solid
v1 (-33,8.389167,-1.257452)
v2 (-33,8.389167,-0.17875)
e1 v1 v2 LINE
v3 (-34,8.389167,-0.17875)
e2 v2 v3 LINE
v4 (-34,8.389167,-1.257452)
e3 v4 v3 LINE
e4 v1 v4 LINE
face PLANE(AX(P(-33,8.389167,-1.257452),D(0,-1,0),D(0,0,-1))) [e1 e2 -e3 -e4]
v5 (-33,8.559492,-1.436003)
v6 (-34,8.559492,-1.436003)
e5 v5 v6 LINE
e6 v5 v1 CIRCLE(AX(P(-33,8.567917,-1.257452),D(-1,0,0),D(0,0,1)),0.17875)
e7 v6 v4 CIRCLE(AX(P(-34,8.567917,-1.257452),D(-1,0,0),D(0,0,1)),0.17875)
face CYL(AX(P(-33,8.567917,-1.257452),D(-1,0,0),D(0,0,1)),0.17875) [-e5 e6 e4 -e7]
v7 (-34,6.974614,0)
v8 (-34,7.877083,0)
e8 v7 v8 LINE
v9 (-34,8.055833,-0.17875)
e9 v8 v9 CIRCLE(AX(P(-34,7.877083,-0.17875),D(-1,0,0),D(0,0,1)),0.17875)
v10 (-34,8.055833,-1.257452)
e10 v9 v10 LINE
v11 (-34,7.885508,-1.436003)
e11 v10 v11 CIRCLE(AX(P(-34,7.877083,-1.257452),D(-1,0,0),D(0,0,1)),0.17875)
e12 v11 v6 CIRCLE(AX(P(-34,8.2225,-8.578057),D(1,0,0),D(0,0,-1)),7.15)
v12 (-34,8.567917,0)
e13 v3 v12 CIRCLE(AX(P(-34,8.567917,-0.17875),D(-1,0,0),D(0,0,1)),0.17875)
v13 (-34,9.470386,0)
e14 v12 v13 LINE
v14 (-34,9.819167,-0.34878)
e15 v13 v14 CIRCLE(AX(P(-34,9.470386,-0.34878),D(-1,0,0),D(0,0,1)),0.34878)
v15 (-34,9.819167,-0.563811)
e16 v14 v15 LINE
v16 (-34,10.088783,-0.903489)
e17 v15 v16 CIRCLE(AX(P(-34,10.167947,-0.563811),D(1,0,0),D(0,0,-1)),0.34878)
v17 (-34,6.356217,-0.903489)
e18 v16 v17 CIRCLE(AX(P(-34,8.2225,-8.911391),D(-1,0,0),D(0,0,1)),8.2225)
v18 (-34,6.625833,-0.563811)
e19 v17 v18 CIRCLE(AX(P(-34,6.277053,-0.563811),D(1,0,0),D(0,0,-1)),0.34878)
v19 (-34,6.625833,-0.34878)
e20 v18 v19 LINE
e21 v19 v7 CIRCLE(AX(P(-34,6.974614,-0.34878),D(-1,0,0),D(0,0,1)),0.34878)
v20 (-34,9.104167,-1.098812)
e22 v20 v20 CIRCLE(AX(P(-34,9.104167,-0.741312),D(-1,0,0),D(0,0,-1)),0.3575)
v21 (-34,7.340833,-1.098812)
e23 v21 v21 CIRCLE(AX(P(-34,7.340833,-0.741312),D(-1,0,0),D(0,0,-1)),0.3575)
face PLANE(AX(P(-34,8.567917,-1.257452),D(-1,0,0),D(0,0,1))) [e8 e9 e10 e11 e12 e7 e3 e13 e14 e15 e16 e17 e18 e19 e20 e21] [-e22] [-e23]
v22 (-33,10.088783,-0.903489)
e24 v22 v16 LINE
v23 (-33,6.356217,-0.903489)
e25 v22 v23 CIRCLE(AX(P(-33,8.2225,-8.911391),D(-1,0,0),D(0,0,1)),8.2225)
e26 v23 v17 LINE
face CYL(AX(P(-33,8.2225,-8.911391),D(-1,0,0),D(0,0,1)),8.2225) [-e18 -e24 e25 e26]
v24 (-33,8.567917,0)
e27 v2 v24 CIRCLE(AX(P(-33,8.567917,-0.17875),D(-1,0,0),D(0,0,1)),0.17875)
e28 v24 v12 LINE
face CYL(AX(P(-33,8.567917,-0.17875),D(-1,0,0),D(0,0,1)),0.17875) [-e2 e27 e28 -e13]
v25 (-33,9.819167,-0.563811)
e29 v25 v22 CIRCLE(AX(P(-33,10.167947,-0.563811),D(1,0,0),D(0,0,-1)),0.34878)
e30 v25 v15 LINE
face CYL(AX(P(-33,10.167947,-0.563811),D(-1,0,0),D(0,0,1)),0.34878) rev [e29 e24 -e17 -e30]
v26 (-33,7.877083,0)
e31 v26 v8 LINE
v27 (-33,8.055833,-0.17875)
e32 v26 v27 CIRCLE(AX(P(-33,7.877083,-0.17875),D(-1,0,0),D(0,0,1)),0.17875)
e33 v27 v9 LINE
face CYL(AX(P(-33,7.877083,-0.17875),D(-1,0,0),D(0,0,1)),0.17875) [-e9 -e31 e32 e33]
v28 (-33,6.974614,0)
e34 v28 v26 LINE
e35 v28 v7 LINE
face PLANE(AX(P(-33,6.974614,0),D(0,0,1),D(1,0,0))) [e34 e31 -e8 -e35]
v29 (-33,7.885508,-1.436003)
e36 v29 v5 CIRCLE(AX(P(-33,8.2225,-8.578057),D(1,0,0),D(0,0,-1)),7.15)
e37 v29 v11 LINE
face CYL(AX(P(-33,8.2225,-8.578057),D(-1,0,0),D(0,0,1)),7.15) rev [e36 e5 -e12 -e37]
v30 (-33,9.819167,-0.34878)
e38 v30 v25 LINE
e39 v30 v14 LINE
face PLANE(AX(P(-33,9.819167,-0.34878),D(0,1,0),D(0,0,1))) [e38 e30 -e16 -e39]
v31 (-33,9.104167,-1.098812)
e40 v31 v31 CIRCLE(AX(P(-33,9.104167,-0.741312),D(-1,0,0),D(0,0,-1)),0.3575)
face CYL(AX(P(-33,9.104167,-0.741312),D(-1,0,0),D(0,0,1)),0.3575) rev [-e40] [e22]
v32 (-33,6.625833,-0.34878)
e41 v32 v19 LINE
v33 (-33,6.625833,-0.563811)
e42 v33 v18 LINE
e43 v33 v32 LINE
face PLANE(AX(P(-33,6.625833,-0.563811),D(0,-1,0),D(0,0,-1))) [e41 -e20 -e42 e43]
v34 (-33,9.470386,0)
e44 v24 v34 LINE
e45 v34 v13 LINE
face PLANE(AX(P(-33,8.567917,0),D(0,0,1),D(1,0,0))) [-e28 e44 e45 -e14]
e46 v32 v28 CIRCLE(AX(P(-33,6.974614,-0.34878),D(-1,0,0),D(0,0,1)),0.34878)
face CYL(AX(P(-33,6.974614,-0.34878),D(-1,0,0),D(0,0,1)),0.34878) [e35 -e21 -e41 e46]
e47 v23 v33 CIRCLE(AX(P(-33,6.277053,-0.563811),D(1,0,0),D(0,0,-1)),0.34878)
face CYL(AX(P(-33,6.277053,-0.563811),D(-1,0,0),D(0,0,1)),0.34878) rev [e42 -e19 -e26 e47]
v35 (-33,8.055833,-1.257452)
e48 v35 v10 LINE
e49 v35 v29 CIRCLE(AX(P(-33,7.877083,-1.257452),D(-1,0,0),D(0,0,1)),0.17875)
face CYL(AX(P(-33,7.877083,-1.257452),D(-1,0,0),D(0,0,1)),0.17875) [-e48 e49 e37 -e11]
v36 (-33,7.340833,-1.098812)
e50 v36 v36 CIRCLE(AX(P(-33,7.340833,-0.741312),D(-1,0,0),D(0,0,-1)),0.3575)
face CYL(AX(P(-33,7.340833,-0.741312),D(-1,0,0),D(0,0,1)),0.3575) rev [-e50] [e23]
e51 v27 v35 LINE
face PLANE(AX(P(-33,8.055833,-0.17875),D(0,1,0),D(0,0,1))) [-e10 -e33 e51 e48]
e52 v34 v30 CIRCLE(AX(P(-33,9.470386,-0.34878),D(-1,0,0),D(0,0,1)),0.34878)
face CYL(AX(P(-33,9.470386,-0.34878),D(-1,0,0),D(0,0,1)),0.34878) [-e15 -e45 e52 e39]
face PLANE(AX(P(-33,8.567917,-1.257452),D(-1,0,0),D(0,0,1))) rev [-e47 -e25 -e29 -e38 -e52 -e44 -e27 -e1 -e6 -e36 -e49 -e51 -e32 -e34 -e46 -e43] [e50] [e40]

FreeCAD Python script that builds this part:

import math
import FreeCAD as App
import Part
import Sketcher

V = App.Vector

doc = App.newDocument("Part")
params = doc.addObject("Spreadsheet::Sheet", "Params")
for row, (alias, value) in enumerate([
    ("sketch1_radius", "7.15 mm"),
    ("pad1_length", "1 mm"),
], start=1):
    params.set(f"A{row}", alias)
    params.set(f"B{row}", "=" + value)
    params.setAlias(f"B{row}", alias)

body = doc.addObject("PartDesign::Body", "Body")

sketch1 = doc.addObject("Sketcher::SketchObject", "Sketch")
body.addObject(sketch1)
sketch1.AttachmentSupport = (doc.YZ_Plane, [""])
sketch1.MapMode = "FlatFace"
sketch1.AttachmentOffset = App.Placement(V(0, 0, -34), App.Rotation())
sketch1.addGeometry(Part.LineSegment(V(8.389167, -1.257452, 0), V(8.389167, -0.17875, 0)), False)
sketch1.addGeometry(Part.ArcOfCircle(Part.Circle(V(8.567917, -0.17875, 0), V(0, 0, 1), 0.17875), math.radians(90), math.radians(180)), False)
sketch1.addGeometry(Part.LineSegment(V(8.567917, 0, 0), V(9.470386, 0, 0)), False)
sketch1.addGeometry(Part.ArcOfCircle(Part.Circle(V(9.470386, -0.34878, 0), V(0, 0, 1), 0.34878), math.radians(0), math.radians(90)), False)
sketch1.addGeometry(Part.LineSegment(V(9.819167, -0.34878, 0), V(9.819167, -0.563811, 0)), False)
sketch1.addGeometry(Part.ArcOfCircle(Part.Circle(V(10.167947, -0.563811, 0), V(0, 0, 1), 0.34878), math.radians(180), math.radians(256.88109)), False)
sketch1.addGeometry(Part.ArcOfCircle(Part.Circle(V(8.2225, -8.911391, 0), V(0, 0, 1), 8.2225), math.radians(103.11891), math.radians(436.88109)), False)
sketch1.addGeometry(Part.ArcOfCircle(Part.Circle(V(6.277053, -0.563811, 0), V(0, 0, 1), 0.34878), math.radians(-76.88109), math.radians(0)), False)
sketch1.addGeometry(Part.LineSegment(V(6.625833, -0.563811, 0), V(6.625833, -0.34878, 0)), False)
sketch1.addGeometry(Part.ArcOfCircle(Part.Circle(V(6.974614, -0.34878, 0), V(0, 0, 1), 0.34878), math.radians(90), math.radians(180)), False)
sketch1.addGeometry(Part.LineSegment(V(6.974614, 0, 0), V(7.877083, 0, 0)), False)
sketch1.addGeometry(Part.ArcOfCircle(Part.Circle(V(7.877083, -0.17875, 0), V(0, 0, 1), 0.17875), math.radians(0), math.radians(90)), False)
sketch1.addGeometry(Part.LineSegment(V(8.055833, -0.17875, 0), V(8.055833, -1.257452, 0)), False)
sketch1.addGeometry(Part.ArcOfCircle(Part.Circle(V(7.877083, -1.257452, 0), V(0, 0, 1), 0.17875), math.radians(-87.298551), math.radians(0.000001)), False)
sketch1.addGeometry(Part.ArcOfCircle(Part.Circle(V(8.2225, -8.578057, 0), V(0, 0, 1), 7.15), math.radians(92.70145), math.radians(447.29855)), False)
sketch1.addGeometry(Part.ArcOfCircle(Part.Circle(V(8.567917, -1.257452, 0), V(0, 0, 1), 0.17875), math.radians(179.999999), math.radians(267.298551)), False)
sketch1.addGeometry(Part.Circle(V(9.104167, -0.741312, 0), V(0, 0, 1), 0.3575), False)
sketch1.addGeometry(Part.Circle(V(7.340833, -0.741312, 0), V(0, 0, 1), 0.3575), False)
sketch1.addConstraint(Sketcher.Constraint("Tangent", 0, 2, 1, 2))
sketch1.addConstraint(Sketcher.Constraint("Tangent", 1, 1, 2, 1))
sketch1.addConstraint(Sketcher.Constraint("Tangent", 2, 2, 3, 2))
sketch1.addConstraint(Sketcher.Constraint("Tangent", 3, 1, 4, 1))
sketch1.addConstraint(Sketcher.Constraint("Tangent", 4, 2, 5, 1))
sketch1.addConstraint(Sketcher.Constraint("Tangent", 5, 2, 6, 2))
sketch1.addConstraint(Sketcher.Constraint("Tangent", 6, 1, 7, 1))
sketch1.addConstraint(Sketcher.Constraint("Tangent", 7, 2, 8, 1))
sketch1.addConstraint(Sketcher.Constraint("Tangent", 8, 2, 9, 2))
sketch1.addConstraint(Sketcher.Constraint("Tangent", 9, 1, 10, 1))
sketch1.addConstraint(Sketcher.Constraint("Tangent", 10, 2, 11, 2))
sketch1.addConstraint(Sketcher.Constraint("Tangent", 11, 1, 12, 1))
sketch1.addConstraint(Sketcher.Constraint("Tangent", 12, 2, 13, 2))
sketch1.addConstraint(Sketcher.Constraint("Tangent", 13, 1, 14, 1))
sketch1.addConstraint(Sketcher.Constraint("Tangent", 14, 2, 15, 2))
sketch1.addConstraint(Sketcher.Constraint("Tangent", 15, 1, 0, 1))
sketch1.addConstraint(Sketcher.Constraint("Vertical", 0))
sketch1.addConstraint(Sketcher.Constraint("Horizontal", 2))
sketch1.addConstraint(Sketcher.Constraint("Vertical", 4))
sketch1.addConstraint(Sketcher.Constraint("Vertical", 8))
sketch1.addConstraint(Sketcher.Constraint("Horizontal", 10))
sketch1.addConstraint(Sketcher.Constraint("Vertical", 12))
sketch1.addConstraint(Sketcher.Constraint("Equal", 3, 5))
sketch1.addConstraint(Sketcher.Constraint("Equal", 5, 7))
sketch1.addConstraint(Sketcher.Constraint("Equal", 7, 9))
sketch1.addConstraint(Sketcher.Constraint("Equal", 1, 11))
sketch1.addConstraint(Sketcher.Constraint("Equal", 11, 13))
sketch1.addConstraint(Sketcher.Constraint("Equal", 13, 15))
sketch1.addConstraint(Sketcher.Constraint("Equal", 16, 17))
sketch1.addConstraint(Sketcher.Constraint("PointOnObject", 1, 1, -1))
sketch1.addConstraint(Sketcher.Constraint("PointOnObject", 9, 1, -1))
sketch1.addConstraint(Sketcher.Constraint("Horizontal", 5, 3, 7, 3))
sketch1.addConstraint(Sketcher.Constraint("Horizontal", 13, 3, 15, 3))
sketch1.addConstraint(Sketcher.Constraint("Horizontal", 16, 3, 17, 3))
sketch1.addConstraint(Sketcher.Constraint("Vertical", 6, 3, 14, 3))
sketch1.addConstraint(Sketcher.Constraint("Radius", 14, 7.15))
sketch1.addConstraint(Sketcher.Constraint("Diameter", 16, 0.715))
sketch1.addConstraint(Sketcher.Constraint("Radius", 6, 8.2225))
sketch1.addConstraint(Sketcher.Constraint("Radius", 1, 0.17875))
sketch1.addConstraint(Sketcher.Constraint("Radius", 3, 0.34878))
sketch1.addConstraint(Sketcher.Constraint("DistanceY", 0, 1, 0, 2, 1.078702))
sketch1.addConstraint(Sketcher.Constraint("DistanceX", 0, 2, 16, 3, 0.715))
sketch1.addConstraint(Sketcher.Constraint("DistanceX", 16, 3, 3, 1, 0.715))
sketch1.addConstraint(Sketcher.Constraint("DistanceX", 7, 2, 17, 3, 0.715))
sketch1.addConstraint(Sketcher.Constraint("DistanceY", 4, 2, 4, 1, 0.215031))
sketch1.addConstraint(Sketcher.Constraint("DistanceX", -1, 1, 6, 3, 8.2225))
sketch1.addConstraint(Sketcher.Constraint("DistanceY", 16, 3, 5, 3, 0.177501))
sketch1.addConstraint(Sketcher.Constraint("DistanceY", 6, 3, -1, 1, 8.911391))
sketch1.setExpression("Constraints[35]", "Params.sketch1_radius")
pad1 = doc.addObject("PartDesign::Pad", "Pad")
body.addObject(pad1)
pad1.Profile = sketch1
pad1.setExpression("Length", "Params.pad1_length")

doc.recompute()
